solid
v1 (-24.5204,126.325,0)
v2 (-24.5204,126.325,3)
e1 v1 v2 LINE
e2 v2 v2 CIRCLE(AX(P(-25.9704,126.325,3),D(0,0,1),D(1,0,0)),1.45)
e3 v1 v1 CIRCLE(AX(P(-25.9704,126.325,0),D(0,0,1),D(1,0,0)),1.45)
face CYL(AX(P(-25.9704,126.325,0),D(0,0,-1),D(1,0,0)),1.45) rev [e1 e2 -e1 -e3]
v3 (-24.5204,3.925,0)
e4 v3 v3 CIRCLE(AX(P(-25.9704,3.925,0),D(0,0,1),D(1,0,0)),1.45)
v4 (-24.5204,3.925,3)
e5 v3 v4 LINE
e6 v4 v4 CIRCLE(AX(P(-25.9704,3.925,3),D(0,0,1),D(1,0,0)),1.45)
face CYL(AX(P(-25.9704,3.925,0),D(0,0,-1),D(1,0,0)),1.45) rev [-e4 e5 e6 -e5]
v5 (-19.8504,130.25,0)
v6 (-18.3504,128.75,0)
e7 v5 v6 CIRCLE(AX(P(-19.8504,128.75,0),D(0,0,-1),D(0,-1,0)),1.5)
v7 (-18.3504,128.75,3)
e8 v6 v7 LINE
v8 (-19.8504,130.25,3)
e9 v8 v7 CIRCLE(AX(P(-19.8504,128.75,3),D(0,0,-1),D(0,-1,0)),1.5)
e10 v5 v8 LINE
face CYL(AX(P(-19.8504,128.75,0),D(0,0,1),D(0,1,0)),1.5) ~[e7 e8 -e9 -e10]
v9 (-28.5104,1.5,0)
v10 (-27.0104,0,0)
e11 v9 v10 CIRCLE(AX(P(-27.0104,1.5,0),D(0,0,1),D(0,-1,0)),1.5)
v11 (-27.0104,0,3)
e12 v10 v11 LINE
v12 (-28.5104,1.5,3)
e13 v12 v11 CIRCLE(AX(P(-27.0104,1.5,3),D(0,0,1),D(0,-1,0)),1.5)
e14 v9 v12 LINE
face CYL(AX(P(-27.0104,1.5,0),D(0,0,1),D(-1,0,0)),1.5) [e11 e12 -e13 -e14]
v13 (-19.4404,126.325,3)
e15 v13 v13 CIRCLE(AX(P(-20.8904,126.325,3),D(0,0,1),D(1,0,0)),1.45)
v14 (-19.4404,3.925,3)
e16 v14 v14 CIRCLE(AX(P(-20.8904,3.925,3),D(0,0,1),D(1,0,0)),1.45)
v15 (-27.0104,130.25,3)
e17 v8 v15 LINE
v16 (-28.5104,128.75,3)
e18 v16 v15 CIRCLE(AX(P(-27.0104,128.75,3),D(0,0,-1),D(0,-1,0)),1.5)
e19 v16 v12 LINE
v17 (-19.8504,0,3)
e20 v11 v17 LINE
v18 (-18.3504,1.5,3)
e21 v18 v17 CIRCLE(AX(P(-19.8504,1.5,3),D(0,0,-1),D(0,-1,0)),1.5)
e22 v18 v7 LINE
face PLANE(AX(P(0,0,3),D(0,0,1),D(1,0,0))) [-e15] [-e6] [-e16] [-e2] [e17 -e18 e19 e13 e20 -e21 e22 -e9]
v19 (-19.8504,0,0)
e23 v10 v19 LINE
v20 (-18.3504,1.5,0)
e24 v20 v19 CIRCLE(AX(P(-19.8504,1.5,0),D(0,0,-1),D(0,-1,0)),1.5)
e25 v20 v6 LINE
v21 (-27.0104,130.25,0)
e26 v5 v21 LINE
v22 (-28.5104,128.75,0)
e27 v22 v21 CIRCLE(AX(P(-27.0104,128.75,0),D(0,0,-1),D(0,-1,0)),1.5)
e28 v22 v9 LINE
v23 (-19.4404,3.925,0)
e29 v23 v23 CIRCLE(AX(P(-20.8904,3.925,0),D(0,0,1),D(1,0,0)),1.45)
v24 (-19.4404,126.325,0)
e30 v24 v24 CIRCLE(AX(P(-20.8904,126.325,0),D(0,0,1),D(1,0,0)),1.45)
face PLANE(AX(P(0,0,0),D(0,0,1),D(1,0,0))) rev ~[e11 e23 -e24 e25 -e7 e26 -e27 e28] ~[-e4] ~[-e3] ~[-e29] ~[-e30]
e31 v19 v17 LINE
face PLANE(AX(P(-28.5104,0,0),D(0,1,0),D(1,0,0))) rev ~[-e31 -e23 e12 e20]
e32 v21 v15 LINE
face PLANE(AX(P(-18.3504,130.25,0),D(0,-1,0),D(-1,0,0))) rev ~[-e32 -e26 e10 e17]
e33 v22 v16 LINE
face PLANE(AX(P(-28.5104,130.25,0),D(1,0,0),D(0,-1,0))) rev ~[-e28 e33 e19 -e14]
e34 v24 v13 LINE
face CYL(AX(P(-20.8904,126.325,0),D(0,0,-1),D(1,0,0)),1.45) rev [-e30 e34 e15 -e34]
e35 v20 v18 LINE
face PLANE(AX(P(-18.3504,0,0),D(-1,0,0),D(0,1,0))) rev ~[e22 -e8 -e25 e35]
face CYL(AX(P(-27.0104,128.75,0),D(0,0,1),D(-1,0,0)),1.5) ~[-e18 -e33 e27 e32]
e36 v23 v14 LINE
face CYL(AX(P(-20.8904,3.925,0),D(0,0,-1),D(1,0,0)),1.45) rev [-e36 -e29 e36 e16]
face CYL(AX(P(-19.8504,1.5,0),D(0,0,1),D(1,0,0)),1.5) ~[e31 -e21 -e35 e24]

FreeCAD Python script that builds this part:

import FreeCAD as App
import Part
import Sketcher
Q = App.Units.Quantity


def edges_at(feature, points):
    """Names of the edges that pass closest to the given points."""
    edges = feature.Shape.Edges
    near = lambda p: min(range(len(edges)), key=lambda i: edges[i].distToShape(Part.Vertex(*p))[0])
    return sorted({f"Edge{near(p) + 1}" for p in points})

doc = App.newDocument("Part")
body = doc.addObject("PartDesign::Body", "Body")

sketch1 = body.newObject("Sketcher::SketchObject", "Sketch")
sketch1.AttachmentSupport = (doc.getObject("XY_Plane"), [""])
sketch1.MapMode = "FlatFace"
sketch1.addGeometry([
    Part.LineSegment(App.Vector(-28.5104, 130.25, 0), App.Vector(-28.5104, 0, 0)),
    Part.LineSegment(App.Vector(-28.5104, 0, 0), App.Vector(-18.3504, 0, 0)),
    Part.LineSegment(App.Vector(-18.3504, 0, 0), App.Vector(-18.3504, 130.25, 0)),
    Part.LineSegment(App.Vector(-18.3504, 130.25, 0), App.Vector(-28.5104, 130.25, 0)),
    Part.Circle(App.Vector(-25.9704, 3.925, 0), App.Vector(0, 0, 1), 1.45),
    Part.Circle(App.Vector(-20.8904, 3.925, 0), App.Vector(0, 0, 1), 1.45),
    Part.Circle(App.Vector(-25.9704, 126.325, 0), App.Vector(0, 0, 1), 1.45),
    Part.Circle(App.Vector(-20.8904, 126.325, 0), App.Vector(0, 0, 1), 1.45),
], False)
sketch1.addConstraint([
    Sketcher.Constraint("Coincident", 0, 2, 1, 1),
    Sketcher.Constraint("Coincident", 1, 2, 2, 1),
    Sketcher.Constraint("Coincident", 2, 2, 3, 1),
    Sketcher.Constraint("Coincident", 3, 2, 0, 1),
    Sketcher.Constraint("Vertical", 0),
    Sketcher.Constraint("Horizontal", 1),
    Sketcher.Constraint("Vertical", 2),
    Sketcher.Constraint("Horizontal", 3),
    Sketcher.Constraint("Equal", 4, 5),
    Sketcher.Constraint("Equal", 5, 6),
    Sketcher.Constraint("Equal", 6, 7),
    Sketcher.Constraint("PointOnObject", 0, 2, -1),
    Sketcher.Constraint("Horizontal", 4, 3, 5, 3),
    Sketcher.Constraint("Horizontal", 6, 3, 7, 3),
    Sketcher.Constraint("Vertical", 4, 3, 6, 3),
    Sketcher.Constraint("Vertical", 5, 3, 7, 3),
    Sketcher.Constraint("Diameter", 4, Q("2.9 mm")),
    Sketcher.Constraint("DistanceX", 1, 1, 1, 2, Q("10.16 mm")),
    Sketcher.Constraint("DistanceY", 4, 3, 6, 3, Q("122.4 mm")),
    Sketcher.Constraint("DistanceX", 0, 2, 4, 3, Q("2.54 mm")),
    Sketcher.Constraint("DistanceX", 5, 3, 1, 2, Q("2.54 mm")),
    Sketcher.Constraint("DistanceY", -1, 1, 4, 3, Q("3.925 mm")),
    Sketcher.Constraint("DistanceY", 7, 3, 2, 2, Q("3.925 mm")),
    Sketcher.Constraint("DistanceX", 4, 3, -1, 1, Q("25.9704 mm")),
])
pad1 = body.newObject("PartDesign::Pad", "Pad")
pad1.Profile = sketch1
pad1.Length = 3
doc.recompute()

fillet = body.newObject("PartDesign::Fillet", "Fillet")
fillet.Base = (pad1, edges_at(pad1, [
    (-28.51, 0, 1.5),
    (-28.51, 130.25, 1.5),
    (-18.35, 130.25, 1.5),
    (-18.35, 0, 1.5),
]))
fillet.Radius = 1.5

doc.recompute()
